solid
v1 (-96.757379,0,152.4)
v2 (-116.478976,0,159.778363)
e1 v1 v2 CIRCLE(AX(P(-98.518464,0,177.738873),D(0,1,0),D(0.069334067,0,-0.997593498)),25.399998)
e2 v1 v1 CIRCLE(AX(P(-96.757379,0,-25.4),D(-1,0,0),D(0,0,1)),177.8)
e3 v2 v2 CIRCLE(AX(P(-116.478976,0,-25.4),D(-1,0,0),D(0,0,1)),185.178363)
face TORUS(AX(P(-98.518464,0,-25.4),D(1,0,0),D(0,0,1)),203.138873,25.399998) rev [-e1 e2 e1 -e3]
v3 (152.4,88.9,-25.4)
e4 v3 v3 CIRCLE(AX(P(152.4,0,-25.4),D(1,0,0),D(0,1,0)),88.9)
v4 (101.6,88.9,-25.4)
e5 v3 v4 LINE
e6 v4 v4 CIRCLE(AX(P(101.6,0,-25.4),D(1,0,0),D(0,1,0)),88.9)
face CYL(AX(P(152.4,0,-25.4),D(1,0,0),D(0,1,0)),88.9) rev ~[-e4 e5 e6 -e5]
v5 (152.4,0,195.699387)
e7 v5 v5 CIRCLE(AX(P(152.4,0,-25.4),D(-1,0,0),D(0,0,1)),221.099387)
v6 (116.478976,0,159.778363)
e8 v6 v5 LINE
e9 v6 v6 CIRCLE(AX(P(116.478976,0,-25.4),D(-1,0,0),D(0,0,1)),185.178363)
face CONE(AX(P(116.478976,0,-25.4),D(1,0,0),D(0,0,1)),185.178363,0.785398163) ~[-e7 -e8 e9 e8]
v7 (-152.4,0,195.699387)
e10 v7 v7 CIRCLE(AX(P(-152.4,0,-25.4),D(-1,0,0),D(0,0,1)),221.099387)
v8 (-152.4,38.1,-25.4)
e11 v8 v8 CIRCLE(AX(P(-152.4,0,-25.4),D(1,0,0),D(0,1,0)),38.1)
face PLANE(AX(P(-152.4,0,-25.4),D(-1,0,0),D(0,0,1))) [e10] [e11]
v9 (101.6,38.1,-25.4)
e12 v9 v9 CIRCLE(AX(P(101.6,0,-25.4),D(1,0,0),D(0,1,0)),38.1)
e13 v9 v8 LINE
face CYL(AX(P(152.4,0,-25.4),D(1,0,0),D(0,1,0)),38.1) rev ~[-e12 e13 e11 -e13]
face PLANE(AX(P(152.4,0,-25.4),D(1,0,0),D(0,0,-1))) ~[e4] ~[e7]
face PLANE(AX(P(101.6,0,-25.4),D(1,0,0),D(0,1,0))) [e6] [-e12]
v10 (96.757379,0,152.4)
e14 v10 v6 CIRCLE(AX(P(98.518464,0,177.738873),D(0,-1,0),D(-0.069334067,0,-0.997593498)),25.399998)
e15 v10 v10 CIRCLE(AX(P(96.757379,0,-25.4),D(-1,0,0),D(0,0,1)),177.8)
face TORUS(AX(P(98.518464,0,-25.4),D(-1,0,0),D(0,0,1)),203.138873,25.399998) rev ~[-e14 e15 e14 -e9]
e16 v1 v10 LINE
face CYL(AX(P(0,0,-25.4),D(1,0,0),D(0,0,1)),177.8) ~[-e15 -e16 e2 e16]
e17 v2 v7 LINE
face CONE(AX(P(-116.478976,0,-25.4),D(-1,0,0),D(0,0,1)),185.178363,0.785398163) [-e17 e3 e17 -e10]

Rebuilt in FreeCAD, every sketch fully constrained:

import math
import FreeCAD as App
import Part
import Sketcher

V = App.Vector
Q = App.Units.Quantity

doc = App.newDocument("Part")
body = doc.addObject("PartDesign::Body", "Body")

# Sketch on XZ plane
sketch1 = body.newObject("Sketcher::SketchObject", "Sketch")
sketch1.AttachmentSupport = (doc.getObject("XZ_Plane"), [""])
sketch1.MapMode = "FlatFace"
sketch1.addGeometry([
    Part.LineSegment(V(-152, 0, 0), V(0, 0, 0)),  # 0
    Part.LineSegment(V(0, 0, 0), V(0, 152, 0)),  # 1
    Part.LineSegment(V(0, 152, 0), V(-97, 152, 0)),  # 2
    Part.ArcOfCircle(Part.Circle(V(-99, 178, 0), V(0, 0, 1), 25), math.radians(-135), math.radians(-86)),  # 3
    Part.LineSegment(V(-116, 160, 0), V(-152, 196, 0)),  # 4
    Part.LineSegment(V(-152, 196, 0), V(-152, 0, 0)),  # 5
], False)
sketch1.addGeometry(Part.LineSegment(V(0, -25, 0), V(-152, -25, 0)), True)  # axis
sketch1.addConstraint([
    Sketcher.Constraint("Coincident", 0, 2, 1, 1),
    Sketcher.Constraint("Coincident", 1, 2, 2, 1),
    Sketcher.Constraint("Coincident", 2, 2, 3, 2),
    Sketcher.Constraint("Tangent", 3, 1, 4, 1),
    Sketcher.Constraint("Coincident", 4, 2, 5, 1),
    Sketcher.Constraint("Coincident", 5, 2, 0, 1),
    Sketcher.Constraint("Horizontal", 0),
    Sketcher.Constraint("Vertical", 1),
    Sketcher.Constraint("Horizontal", 2),
    Sketcher.Constraint("Vertical", 5),
    Sketcher.Constraint("Horizontal", 6),
    Sketcher.Constraint("Coincident", 0, 2, -1, 1),
    Sketcher.Constraint("PointOnObject", 6, 1, -2),
    Sketcher.Constraint("Vertical", 5, 2, 6, 2),
    Sketcher.Constraint("Equal", 6, 1),
    Sketcher.Constraint("Radius", 3, Q("0.9999999 in")),
    Sketcher.Constraint("DistanceX", 0, 1, 0, 2, Q("6 in")),
    Sketcher.Constraint("Distance", 4, Q("2 in")),
    Sketcher.Constraint("DistanceY", 6, 1, -1, 1, Q("1 in")),
    Sketcher.Constraint("Angle", 4, Q("135 deg")),
    Sketcher.Constraint("DistanceX", 2, 2, 2, 1, Q("96.757379 mm")),
])
revolution = body.newObject("PartDesign::Revolution", "Revolution")
revolution.Profile = sketch1
revolution.ReferenceAxis = (sketch1, ["Axis0"])
revolution.Angle = 360
body2 = doc.addObject("PartDesign::Body", "Body001")
doc.recompute()

body2.BaseFeature = body
doc.recompute()

mirroring = doc.addObject("Part::Mirroring", "Mirroring")
mirroring.Source = body
mirroring.Base = V(0, 0, -25.4)
mirroring.Normal = V(1, 0, 0)
body3 = doc.addObject("PartDesign::Body", "Body002")
body3.BaseFeature = mirroring
boolean = body2.newObject("PartDesign::Boolean", "Boolean")
boolean.Type = "Fuse"
boolean.addObjects([body3])
doc.recompute()

# Sketch on YZ plane
sketch2 = body2.newObject("Sketcher::SketchObject", "Sketch001")
sketch2.AttachmentSupport = (doc.getObject("YZ_Plane001"), [""])
sketch2.MapMode = "FlatFace"
sketch2.AttachmentOffset = App.Placement(V(0, 0, 6 * 25.4), App.Rotation())
sketch2.addGeometry([
    Part.Circle(V(0, -25, 0), V(0, 0, 1), 38),
    Part.Circle(V(0, -25, 0), V(0, 0, 1), 25),
], False)
sketch2.addConstraint([
    Sketcher.Constraint("Coincident", 1, 3, 0, 3),
    Sketcher.Constraint("PointOnObject", 0, 3, -2),
    Sketcher.Constraint("Diameter", 0, Q("3 in")),
    Sketcher.Constraint("Diameter", 1, Q("2 in")),
    Sketcher.Constraint("DistanceY", 0, 3, -1, 1, Q("1 in")),
])
pocket1 = body2.newObject("PartDesign::Pocket", "Pocket")
pocket1.Profile = sketch2
pocket1.Type = "ThroughAll"

# Sketch on YZ plane
sketch3 = body2.newObject("Sketcher::SketchObject", "Sketch002")
sketch3.AttachmentSupport = (doc.getObject("YZ_Plane001"), [""])
sketch3.MapMode = "FlatFace"
sketch3.AttachmentOffset = App.Placement(V(0, 0, 6 * 25.4), App.Rotation())
sketch3.addGeometry([
    Part.Circle(V(0, -25, 0), V(0, 0, 1), 89),
    Part.Circle(V(0, -25, 0), V(0, 0, 1), 38),
], False)
sketch3.addConstraint([
    Sketcher.Constraint("Coincident", 1, 3, 0, 3),
    Sketcher.Constraint("PointOnObject", 0, 3, -2),
    Sketcher.Constraint("Diameter", 0, Q("7 in")),
    Sketcher.Constraint("Diameter", 1, Q("3 in")),
    Sketcher.Constraint("DistanceY", 0, 3, -1, 1, Q("1 in")),
])
pocket2 = body2.newObject("PartDesign::Pocket", "Pocket001")
pocket2.Profile = sketch3
pocket2.Length = Q("2 in")
mirroring.Visibility = False

doc.recompute()
